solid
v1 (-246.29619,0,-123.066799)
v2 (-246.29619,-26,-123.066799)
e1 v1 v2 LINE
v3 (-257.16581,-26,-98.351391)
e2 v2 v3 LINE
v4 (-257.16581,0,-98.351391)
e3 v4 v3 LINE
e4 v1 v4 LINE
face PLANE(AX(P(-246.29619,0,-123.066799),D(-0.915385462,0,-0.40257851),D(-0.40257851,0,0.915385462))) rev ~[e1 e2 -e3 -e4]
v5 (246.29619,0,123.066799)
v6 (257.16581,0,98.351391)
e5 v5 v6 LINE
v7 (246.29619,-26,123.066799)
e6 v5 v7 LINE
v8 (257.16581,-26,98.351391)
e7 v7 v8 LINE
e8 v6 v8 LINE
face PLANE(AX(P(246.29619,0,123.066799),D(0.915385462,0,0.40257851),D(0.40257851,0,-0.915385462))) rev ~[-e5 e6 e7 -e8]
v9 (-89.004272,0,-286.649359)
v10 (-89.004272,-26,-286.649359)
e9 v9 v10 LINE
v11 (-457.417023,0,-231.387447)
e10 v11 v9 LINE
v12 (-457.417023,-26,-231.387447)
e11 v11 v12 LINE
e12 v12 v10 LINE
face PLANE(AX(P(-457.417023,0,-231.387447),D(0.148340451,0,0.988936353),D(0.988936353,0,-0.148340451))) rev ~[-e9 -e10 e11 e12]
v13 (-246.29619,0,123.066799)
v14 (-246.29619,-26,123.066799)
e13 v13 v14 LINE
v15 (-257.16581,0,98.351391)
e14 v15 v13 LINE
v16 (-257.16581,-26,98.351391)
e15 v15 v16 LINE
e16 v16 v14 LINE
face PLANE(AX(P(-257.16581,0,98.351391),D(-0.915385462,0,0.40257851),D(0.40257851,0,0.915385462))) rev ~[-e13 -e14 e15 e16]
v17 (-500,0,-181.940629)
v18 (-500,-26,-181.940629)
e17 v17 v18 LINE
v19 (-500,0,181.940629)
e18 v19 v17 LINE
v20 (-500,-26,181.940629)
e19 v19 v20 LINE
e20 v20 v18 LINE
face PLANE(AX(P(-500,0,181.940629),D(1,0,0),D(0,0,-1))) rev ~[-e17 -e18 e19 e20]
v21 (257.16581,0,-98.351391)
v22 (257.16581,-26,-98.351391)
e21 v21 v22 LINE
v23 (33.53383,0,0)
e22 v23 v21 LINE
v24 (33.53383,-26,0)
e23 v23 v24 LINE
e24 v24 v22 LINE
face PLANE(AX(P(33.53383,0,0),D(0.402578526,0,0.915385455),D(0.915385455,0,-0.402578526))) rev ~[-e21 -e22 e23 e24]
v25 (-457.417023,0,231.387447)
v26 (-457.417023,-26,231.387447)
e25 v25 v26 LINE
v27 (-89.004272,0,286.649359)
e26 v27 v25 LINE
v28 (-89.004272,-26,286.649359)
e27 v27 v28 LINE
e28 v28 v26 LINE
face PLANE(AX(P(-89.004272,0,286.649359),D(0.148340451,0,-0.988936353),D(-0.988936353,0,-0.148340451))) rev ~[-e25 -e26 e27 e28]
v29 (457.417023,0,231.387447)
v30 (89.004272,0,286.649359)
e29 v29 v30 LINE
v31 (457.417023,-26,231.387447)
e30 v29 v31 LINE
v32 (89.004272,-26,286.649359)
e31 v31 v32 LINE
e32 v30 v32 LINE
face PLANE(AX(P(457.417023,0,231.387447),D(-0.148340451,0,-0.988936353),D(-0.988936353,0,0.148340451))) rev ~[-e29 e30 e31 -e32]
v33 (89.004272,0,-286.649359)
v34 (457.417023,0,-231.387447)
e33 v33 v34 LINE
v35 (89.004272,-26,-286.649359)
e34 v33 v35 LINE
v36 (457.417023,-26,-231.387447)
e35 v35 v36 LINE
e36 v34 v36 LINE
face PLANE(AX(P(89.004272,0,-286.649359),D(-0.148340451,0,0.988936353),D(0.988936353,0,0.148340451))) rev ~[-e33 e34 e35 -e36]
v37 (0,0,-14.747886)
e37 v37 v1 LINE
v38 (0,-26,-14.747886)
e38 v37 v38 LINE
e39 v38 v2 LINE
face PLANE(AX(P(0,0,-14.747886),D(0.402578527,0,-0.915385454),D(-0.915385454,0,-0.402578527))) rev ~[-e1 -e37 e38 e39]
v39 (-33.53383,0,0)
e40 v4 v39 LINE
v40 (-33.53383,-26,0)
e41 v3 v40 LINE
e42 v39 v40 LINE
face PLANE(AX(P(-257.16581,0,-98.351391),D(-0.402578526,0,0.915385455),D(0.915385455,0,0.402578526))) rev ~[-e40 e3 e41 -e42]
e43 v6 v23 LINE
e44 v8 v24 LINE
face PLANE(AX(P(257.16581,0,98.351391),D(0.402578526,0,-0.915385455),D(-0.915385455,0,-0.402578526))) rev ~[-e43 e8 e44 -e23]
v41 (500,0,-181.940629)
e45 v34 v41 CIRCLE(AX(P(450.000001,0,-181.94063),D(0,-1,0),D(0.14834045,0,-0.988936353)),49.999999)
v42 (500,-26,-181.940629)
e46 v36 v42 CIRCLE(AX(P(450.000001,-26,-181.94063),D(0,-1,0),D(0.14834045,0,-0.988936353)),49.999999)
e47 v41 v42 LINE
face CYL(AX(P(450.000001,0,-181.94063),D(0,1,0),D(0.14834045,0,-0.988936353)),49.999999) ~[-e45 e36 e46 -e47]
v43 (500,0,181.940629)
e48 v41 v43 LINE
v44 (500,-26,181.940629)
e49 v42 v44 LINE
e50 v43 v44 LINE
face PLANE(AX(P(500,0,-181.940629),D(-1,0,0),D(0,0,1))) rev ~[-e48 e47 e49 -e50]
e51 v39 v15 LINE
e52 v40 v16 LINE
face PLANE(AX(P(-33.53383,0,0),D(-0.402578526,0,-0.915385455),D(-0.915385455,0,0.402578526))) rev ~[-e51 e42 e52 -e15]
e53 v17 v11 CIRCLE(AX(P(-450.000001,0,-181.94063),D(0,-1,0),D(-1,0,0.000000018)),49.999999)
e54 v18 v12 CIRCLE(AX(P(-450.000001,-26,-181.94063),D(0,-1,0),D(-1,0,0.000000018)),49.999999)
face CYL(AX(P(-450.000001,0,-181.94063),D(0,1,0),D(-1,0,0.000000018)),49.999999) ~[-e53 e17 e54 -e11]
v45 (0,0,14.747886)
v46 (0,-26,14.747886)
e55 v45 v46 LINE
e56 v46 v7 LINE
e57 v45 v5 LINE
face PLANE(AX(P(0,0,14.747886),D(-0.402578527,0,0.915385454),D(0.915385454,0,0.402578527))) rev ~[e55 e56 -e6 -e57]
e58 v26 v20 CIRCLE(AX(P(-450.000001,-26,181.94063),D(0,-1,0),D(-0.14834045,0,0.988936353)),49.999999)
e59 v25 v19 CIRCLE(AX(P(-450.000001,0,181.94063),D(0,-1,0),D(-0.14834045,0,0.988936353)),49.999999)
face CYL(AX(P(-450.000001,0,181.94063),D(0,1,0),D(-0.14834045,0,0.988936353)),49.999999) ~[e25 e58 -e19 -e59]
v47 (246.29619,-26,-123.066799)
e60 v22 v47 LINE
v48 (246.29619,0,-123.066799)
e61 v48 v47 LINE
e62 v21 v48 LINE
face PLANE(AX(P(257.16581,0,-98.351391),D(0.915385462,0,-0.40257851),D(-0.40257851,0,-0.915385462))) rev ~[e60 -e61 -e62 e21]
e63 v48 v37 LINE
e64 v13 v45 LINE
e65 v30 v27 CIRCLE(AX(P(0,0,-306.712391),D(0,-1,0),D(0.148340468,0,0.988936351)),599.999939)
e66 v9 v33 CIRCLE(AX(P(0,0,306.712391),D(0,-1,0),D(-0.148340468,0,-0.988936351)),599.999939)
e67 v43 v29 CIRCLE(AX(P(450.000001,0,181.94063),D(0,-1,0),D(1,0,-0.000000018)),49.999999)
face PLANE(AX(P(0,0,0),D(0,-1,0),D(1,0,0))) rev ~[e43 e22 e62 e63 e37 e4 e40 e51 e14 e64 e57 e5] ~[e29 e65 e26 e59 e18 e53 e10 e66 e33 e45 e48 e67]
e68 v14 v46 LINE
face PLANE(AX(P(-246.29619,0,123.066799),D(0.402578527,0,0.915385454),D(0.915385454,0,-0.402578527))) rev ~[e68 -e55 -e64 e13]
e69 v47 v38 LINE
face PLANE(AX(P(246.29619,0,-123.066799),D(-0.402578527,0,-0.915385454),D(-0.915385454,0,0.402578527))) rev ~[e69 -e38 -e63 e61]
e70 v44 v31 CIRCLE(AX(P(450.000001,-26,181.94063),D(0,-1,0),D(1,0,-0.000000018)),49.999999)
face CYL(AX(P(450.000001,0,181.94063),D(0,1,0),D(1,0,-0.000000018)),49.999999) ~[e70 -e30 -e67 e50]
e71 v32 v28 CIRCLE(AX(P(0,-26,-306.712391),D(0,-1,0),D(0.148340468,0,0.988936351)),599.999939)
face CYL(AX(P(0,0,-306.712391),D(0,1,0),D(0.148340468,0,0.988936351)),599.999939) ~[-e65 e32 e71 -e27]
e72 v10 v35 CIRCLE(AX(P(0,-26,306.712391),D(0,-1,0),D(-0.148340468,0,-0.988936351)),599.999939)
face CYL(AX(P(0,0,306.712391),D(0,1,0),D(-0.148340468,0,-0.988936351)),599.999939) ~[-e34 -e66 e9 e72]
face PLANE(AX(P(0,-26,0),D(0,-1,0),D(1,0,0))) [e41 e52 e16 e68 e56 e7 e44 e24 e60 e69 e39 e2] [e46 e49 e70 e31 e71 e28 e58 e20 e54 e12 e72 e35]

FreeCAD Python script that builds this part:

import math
import FreeCAD as App
import Part
import Sketcher
Q = App.Units.Quantity


def add_polygon(sketch, points):
    """Adds a closed chain of lines whose ends are joined by coincident constraints."""
    first, n = sketch.GeometryCount, len(points)
    for a, b in zip(points, points[1:] + points[:1]):
        sketch.addGeometry(Part.LineSegment(App.Vector(*a, 0), App.Vector(*b, 0)), False)
    for i in range(n):
        sketch.addConstraint(Sketcher.Constraint("Coincident", first + i, 2, first + (i + 1) % n, 1))

doc = App.newDocument("Part")
body = doc.addObject("PartDesign::Body", "Body")

# Sketch on XZ plane
sketch1 = body.newObject("Sketcher::SketchObject", "Sketch")
sketch1.AttachmentSupport = (doc.getObject("XZ_Plane"), [""])
sketch1.MapMode = "FlatFace"
sketch1.addGeometry(Part.LineSegment(App.Vector(-500, 182, 0), App.Vector(-500, -182, 0)), False)  # 0
sketch1.addGeometry(Part.ArcOfCircle(Part.Circle(App.Vector(-450, -182, 0), App.Vector(0, 0, 1), 50), math.radians(180), math.radians(261)), False)  # 1
sketch1.addGeometry(Part.LineSegment(App.Vector(-457, -231, 0), App.Vector(-89, -287, 0)), False)  # 2
sketch1.addGeometry(Part.ArcOfCircle(Part.Circle(App.Vector(0, 307, 0), App.Vector(0, 0, 1), 600), math.radians(-98.53), math.radians(-81.47)), False)  # 3
sketch1.addGeometry(Part.LineSegment(App.Vector(89, -287, 0), App.Vector(457, -231, 0)), False)  # 4
sketch1.addGeometry(Part.ArcOfCircle(Part.Circle(App.Vector(450, -182, 0), App.Vector(0, 0, 1), 50), math.radians(-81), math.radians(0)), False)  # 5
sketch1.addGeometry(Part.LineSegment(App.Vector(500, -182, 0), App.Vector(500, 182, 0)), False)  # 6
sketch1.addGeometry(Part.ArcOfCircle(Part.Circle(App.Vector(450, 182, 0), App.Vector(0, 0, 1), 50), math.radians(0), math.radians(81)), False)  # 7
sketch1.addGeometry(Part.LineSegment(App.Vector(457, 231, 0), App.Vector(89, 287, 0)), False)  # 8
sketch1.addGeometry(Part.ArcOfCircle(Part.Circle(App.Vector(0, -307, 0), App.Vector(0, 0, 1), 600), math.radians(81.47), math.radians(98.53)), False)  # 9
sketch1.addGeometry(Part.LineSegment(App.Vector(-89, 287, 0), App.Vector(-457, 231, 0)), False)  # 10
sketch1.addGeometry(Part.ArcOfCircle(Part.Circle(App.Vector(-450, 182, 0), App.Vector(0, 0, 1), 50), math.radians(99), math.radians(180)), False)  # 11
add_polygon(sketch1, [(-257, 98), (-246, 123), (0, 15), (246, 123), (257, 98), (34, 0), (257, -98), (246, -123), (0, -15), (-246, -123), (-257, -98), (-34, 0)])  # lines 12-23
sketch1.addConstraint([
    Sketcher.Constraint("Tangent", 0, 2, 1, 1),
    Sketcher.Constraint("Tangent", 1, 2, 2, 1),
    Sketcher.Constraint("Tangent", 2, 2, 3, 1),
    Sketcher.Constraint("Tangent", 3, 2, 4, 1),
    Sketcher.Constraint("Tangent", 4, 2, 5, 1),
    Sketcher.Constraint("Tangent", 5, 2, 6, 1),
    Sketcher.Constraint("Tangent", 6, 2, 7, 1),
    Sketcher.Constraint("Tangent", 7, 2, 8, 1),
    Sketcher.Constraint("Tangent", 8, 2, 9, 1),
    Sketcher.Constraint("Tangent", 9, 2, 10, 1),
    Sketcher.Constraint("Tangent", 10, 2, 11, 1),
    Sketcher.Constraint("Tangent", 11, 2, 0, 1),
    Sketcher.Constraint("Vertical", 0),
    Sketcher.Constraint("Vertical", 6),
    Sketcher.Constraint("Equal", 1, 5),
    Sketcher.Constraint("Equal", 5, 7),
    Sketcher.Constraint("Equal", 3, 9),
    Sketcher.Constraint("Equal", 7, 11),
    Sketcher.Constraint("Symmetric", 1, 3, 7, 3, -1, 1),
    Sketcher.Constraint("Symmetric", 3, 3, 9, 3, -1, 1),
    Sketcher.Constraint("Symmetric", 12, 2, 18, 2, -1, 1),
    Sketcher.Constraint("Symmetric", 13, 2, 19, 2, -1, 1),
    Sketcher.Constraint("Symmetric", 14, 2, 20, 2, -1, 1),
    Sketcher.Constraint("Symmetric", 15, 2, 21, 2, -1, 1),
    Sketcher.Constraint("Symmetric", 16, 2, 22, 2, -1, 1),
    Sketcher.Constraint("Symmetric", 17, 2, 23, 2, -1, 1),
    Sketcher.Constraint("Symmetric", 12, 2, 14, 2, -2),
    Sketcher.Constraint("Symmetric", 17, 2, 21, 2, -2),
    Sketcher.Constraint("PointOnObject", 3, 3, -2),
    Sketcher.Constraint("PointOnObject", 13, 2, -2),
    Sketcher.Constraint("PointOnObject", 16, 2, -1),
    Sketcher.Constraint("Parallel", 4, 10),
    Sketcher.Constraint("Perpendicular", 12, 13),
    Sketcher.Constraint("Perpendicular", 15, 16),
    Sketcher.Constraint("Horizontal", 1, 3, 5, 3),
    Sketcher.Constraint("Radius", 1, Q("49.999999 mm")),
    Sketcher.Constraint("Distance", 12, Q("27.000001 mm")),
    Sketcher.Constraint("DistanceX", 1, 3, -1, 1, Q("450.000001 mm")),
    Sketcher.Constraint("Radius", 3, Q("599.999939 mm")),
    Sketcher.Constraint("DistanceY", 0, 2, 0, 1, Q("363.881258 mm")),
    Sketcher.Constraint("DistanceY", -1, 1, 12, 2, Q("123.066799 mm")),
    Sketcher.Constraint("Distance", 2, Q("372.534339 mm")),
    Sketcher.Constraint("Distance", 13, Q("269.062818 mm")),
    Sketcher.Constraint("Distance", 16, Q("244.30362 mm")),
])
pad1 = body.newObject("PartDesign::Pad", "Pad")
pad1.Profile = sketch1
pad1.Length = 26

doc.recompute()
